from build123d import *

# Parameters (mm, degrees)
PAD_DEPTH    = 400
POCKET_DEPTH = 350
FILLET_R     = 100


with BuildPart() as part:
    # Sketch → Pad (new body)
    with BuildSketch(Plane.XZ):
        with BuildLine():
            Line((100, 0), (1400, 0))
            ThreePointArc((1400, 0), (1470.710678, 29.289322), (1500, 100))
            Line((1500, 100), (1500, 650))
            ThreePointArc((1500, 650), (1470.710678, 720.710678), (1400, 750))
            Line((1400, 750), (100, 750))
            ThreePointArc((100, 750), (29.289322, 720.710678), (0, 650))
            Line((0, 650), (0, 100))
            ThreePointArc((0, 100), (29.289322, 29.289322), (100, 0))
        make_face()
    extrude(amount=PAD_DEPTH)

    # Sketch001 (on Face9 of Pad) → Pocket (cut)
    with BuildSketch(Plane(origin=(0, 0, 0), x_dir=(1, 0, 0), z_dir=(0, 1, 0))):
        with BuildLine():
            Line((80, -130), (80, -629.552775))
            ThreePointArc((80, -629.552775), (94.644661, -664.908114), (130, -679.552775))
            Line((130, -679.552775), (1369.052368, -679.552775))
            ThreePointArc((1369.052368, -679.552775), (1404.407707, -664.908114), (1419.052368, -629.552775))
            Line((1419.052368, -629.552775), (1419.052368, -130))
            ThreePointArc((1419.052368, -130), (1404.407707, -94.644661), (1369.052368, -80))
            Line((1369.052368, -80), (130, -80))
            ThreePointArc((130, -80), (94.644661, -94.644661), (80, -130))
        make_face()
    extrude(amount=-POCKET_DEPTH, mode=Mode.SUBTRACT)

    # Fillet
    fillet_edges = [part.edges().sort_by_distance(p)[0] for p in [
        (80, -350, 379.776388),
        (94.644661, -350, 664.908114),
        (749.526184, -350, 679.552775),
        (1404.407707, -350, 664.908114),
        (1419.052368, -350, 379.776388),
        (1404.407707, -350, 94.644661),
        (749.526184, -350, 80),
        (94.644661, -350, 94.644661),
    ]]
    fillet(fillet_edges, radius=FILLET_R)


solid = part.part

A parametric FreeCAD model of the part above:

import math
import FreeCAD as App
import Part
import Sketcher

V = App.Vector


def edges_at(feature, points):
    """Names of the edges that pass closest to the given points."""
    edges = feature.Shape.Edges
    near = lambda p: min(range(len(edges)), key=lambda i: edges[i].distToShape(Part.Vertex(*p))[0])
    return sorted({f"Edge{near(p) + 1}" for p in points})

doc = App.newDocument("Part")
body = doc.addObject("PartDesign::Body", "Body")

# Sketch on XZ plane
sketch1 = doc.addObject("Sketcher::SketchObject", "Sketch")
body.addObject(sketch1)
sketch1.AttachmentSupport = (doc.XZ_Plane, [""])
sketch1.MapMode = "FlatFace"
sketch1.addGeometry([
    Part.LineSegment(V(100, 0, 0), V(1400, 0, 0)),  # 0
    Part.ArcOfCircle(Part.Circle(V(1400, 100, 0), V(0, 0, 1), 100), math.radians(-90), math.radians(0)),  # 1
    Part.LineSegment(V(1500, 100, 0), V(1500, 650, 0)),  # 2
    Part.ArcOfCircle(Part.Circle(V(1400, 650, 0), V(0, 0, 1), 100), math.radians(0), math.radians(90)),  # 3
    Part.LineSegment(V(1400, 750, 0), V(100, 750, 0)),  # 4
    Part.ArcOfCircle(Part.Circle(V(100, 650, 0), V(0, 0, 1), 100), math.radians(90), math.radians(180)),  # 5
    Part.LineSegment(V(0, 650, 0), V(0, 100, 0)),  # 6
    Part.ArcOfCircle(Part.Circle(V(100, 100, 0), V(0, 0, 1), 100), math.radians(-180), math.radians(-90)),  # 7
], False)
sketch1.addConstraint([
    Sketcher.Constraint("Tangent", 0, 2, 1, 1),
    Sketcher.Constraint("Tangent", 1, 2, 2, 1),
    Sketcher.Constraint("Tangent", 2, 2, 3, 1),
    Sketcher.Constraint("Tangent", 3, 2, 4, 1),
    Sketcher.Constraint("Tangent", 4, 2, 5, 1),
    Sketcher.Constraint("Tangent", 5, 2, 6, 1),
    Sketcher.Constraint("Tangent", 6, 2, 7, 1),
    Sketcher.Constraint("Tangent", 7, 2, 0, 1),
    Sketcher.Constraint("Horizontal", 0),
    Sketcher.Constraint("Vertical", 2),
    Sketcher.Constraint("Horizontal", 4),
    Sketcher.Constraint("Vertical", 6),
    Sketcher.Constraint("Equal", 1, 3),
    Sketcher.Constraint("Equal", 3, 5),
    Sketcher.Constraint("Equal", 5, 7),
    Sketcher.Constraint("PointOnObject", 0, 2, -1),
    Sketcher.Constraint("PointOnObject", 5, 2, -2),
    Sketcher.Constraint("Radius", 1, 100.0),
    Sketcher.Constraint("DistanceX", 0, 1, 0, 2, 1300.0),
    Sketcher.Constraint("DistanceY", 2, 1, 2, 2, 550.0),
])
pad1 = doc.addObject("PartDesign::Pad", "Pad")
body.addObject(pad1)
pad1.Profile = sketch1
pad1.Length = 400

# Sketch on XZ plane
sketch2 = doc.addObject("Sketcher::SketchObject", "Sketch001")
body.addObject(sketch2)
sketch2.AttachmentSupport = (doc.XZ_Plane, [""])
sketch2.MapMode = "FlatFace"
sketch2.addGeometry([
    Part.LineSegment(V(80, 130, 0), V(80, 629.552775, 0)),  # 0
    Part.ArcOfCircle(Part.Circle(V(130, 629.552775, 0), V(0, 0, 1), 50), math.radians(90), math.radians(180)),  # 1
    Part.LineSegment(V(130, 679.552775, 0), V(1369.052368, 679.552775, 0)),  # 2
    Part.ArcOfCircle(Part.Circle(V(1369.052368, 629.552775, 0), V(0, 0, 1), 50), math.radians(0), math.radians(90)),  # 3
    Part.LineSegment(V(1419.052368, 629.552775, 0), V(1419.052368, 130, 0)),  # 4
    Part.ArcOfCircle(Part.Circle(V(1369.052368, 130, 0), V(0, 0, 1), 50), math.radians(-90), math.radians(0)),  # 5
    Part.LineSegment(V(1369.052368, 80, 0), V(130, 80, 0)),  # 6
    Part.ArcOfCircle(Part.Circle(V(130, 130, 0), V(0, 0, 1), 50), math.radians(-180), math.radians(-90)),  # 7
], False)
sketch2.addConstraint([
    Sketcher.Constraint("Tangent", 0, 2, 1, 2),
    Sketcher.Constraint("Tangent", 1, 1, 2, 1),
    Sketcher.Constraint("Tangent", 2, 2, 3, 2),
    Sketcher.Constraint("Tangent", 3, 1, 4, 1),
    Sketcher.Constraint("Tangent", 4, 2, 5, 2),
    Sketcher.Constraint("Tangent", 5, 1, 6, 1),
    Sketcher.Constraint("Tangent", 6, 2, 7, 2),
    Sketcher.Constraint("Tangent", 7, 1, 0, 1),
    Sketcher.Constraint("Vertical", 0),
    Sketcher.Constraint("Horizontal", 2),
    Sketcher.Constraint("Vertical", 4),
    Sketcher.Constraint("Horizontal", 6),
    Sketcher.Constraint("Equal", 1, 3),
    Sketcher.Constraint("Equal", 3, 5),
    Sketcher.Constraint("Equal", 5, 7),
    Sketcher.Constraint("Radius", 1, 50.0),
    Sketcher.Constraint("DistanceX", -1, 1, 1, 3, 130.0),
    Sketcher.Constraint("DistanceY", -1, 1, 5, 3, 130.0),
    Sketcher.Constraint("DistanceX", 2, 1, 2, 2, 1239.052368),
    Sketcher.Constraint("DistanceY", 0, 1, 0, 2, 499.552775),
])
pocket1 = doc.addObject("PartDesign::Pocket", "Pocket")
body.addObject(pocket1)
pocket1.Profile = sketch2
pocket1.Length = 350
pocket1.Reversed = True
doc.recompute()

fillet = doc.addObject("PartDesign::Fillet", "Fillet")
body.addObject(fillet)
fillet.Base = (pocket1, edges_at(pocket1, [
    (80, -350, 379.776),
    (94.645, -350, 664.908),
    (749.526, -350, 679.553),
    (1404.408, -350, 664.908),
    (1419.052, -350, 379.776),
    (1404.408, -350, 94.645),
    (749.526, -350, 80),
    (94.645, -350, 94.645),
]))
fillet.Radius = 100

doc.recompute()
